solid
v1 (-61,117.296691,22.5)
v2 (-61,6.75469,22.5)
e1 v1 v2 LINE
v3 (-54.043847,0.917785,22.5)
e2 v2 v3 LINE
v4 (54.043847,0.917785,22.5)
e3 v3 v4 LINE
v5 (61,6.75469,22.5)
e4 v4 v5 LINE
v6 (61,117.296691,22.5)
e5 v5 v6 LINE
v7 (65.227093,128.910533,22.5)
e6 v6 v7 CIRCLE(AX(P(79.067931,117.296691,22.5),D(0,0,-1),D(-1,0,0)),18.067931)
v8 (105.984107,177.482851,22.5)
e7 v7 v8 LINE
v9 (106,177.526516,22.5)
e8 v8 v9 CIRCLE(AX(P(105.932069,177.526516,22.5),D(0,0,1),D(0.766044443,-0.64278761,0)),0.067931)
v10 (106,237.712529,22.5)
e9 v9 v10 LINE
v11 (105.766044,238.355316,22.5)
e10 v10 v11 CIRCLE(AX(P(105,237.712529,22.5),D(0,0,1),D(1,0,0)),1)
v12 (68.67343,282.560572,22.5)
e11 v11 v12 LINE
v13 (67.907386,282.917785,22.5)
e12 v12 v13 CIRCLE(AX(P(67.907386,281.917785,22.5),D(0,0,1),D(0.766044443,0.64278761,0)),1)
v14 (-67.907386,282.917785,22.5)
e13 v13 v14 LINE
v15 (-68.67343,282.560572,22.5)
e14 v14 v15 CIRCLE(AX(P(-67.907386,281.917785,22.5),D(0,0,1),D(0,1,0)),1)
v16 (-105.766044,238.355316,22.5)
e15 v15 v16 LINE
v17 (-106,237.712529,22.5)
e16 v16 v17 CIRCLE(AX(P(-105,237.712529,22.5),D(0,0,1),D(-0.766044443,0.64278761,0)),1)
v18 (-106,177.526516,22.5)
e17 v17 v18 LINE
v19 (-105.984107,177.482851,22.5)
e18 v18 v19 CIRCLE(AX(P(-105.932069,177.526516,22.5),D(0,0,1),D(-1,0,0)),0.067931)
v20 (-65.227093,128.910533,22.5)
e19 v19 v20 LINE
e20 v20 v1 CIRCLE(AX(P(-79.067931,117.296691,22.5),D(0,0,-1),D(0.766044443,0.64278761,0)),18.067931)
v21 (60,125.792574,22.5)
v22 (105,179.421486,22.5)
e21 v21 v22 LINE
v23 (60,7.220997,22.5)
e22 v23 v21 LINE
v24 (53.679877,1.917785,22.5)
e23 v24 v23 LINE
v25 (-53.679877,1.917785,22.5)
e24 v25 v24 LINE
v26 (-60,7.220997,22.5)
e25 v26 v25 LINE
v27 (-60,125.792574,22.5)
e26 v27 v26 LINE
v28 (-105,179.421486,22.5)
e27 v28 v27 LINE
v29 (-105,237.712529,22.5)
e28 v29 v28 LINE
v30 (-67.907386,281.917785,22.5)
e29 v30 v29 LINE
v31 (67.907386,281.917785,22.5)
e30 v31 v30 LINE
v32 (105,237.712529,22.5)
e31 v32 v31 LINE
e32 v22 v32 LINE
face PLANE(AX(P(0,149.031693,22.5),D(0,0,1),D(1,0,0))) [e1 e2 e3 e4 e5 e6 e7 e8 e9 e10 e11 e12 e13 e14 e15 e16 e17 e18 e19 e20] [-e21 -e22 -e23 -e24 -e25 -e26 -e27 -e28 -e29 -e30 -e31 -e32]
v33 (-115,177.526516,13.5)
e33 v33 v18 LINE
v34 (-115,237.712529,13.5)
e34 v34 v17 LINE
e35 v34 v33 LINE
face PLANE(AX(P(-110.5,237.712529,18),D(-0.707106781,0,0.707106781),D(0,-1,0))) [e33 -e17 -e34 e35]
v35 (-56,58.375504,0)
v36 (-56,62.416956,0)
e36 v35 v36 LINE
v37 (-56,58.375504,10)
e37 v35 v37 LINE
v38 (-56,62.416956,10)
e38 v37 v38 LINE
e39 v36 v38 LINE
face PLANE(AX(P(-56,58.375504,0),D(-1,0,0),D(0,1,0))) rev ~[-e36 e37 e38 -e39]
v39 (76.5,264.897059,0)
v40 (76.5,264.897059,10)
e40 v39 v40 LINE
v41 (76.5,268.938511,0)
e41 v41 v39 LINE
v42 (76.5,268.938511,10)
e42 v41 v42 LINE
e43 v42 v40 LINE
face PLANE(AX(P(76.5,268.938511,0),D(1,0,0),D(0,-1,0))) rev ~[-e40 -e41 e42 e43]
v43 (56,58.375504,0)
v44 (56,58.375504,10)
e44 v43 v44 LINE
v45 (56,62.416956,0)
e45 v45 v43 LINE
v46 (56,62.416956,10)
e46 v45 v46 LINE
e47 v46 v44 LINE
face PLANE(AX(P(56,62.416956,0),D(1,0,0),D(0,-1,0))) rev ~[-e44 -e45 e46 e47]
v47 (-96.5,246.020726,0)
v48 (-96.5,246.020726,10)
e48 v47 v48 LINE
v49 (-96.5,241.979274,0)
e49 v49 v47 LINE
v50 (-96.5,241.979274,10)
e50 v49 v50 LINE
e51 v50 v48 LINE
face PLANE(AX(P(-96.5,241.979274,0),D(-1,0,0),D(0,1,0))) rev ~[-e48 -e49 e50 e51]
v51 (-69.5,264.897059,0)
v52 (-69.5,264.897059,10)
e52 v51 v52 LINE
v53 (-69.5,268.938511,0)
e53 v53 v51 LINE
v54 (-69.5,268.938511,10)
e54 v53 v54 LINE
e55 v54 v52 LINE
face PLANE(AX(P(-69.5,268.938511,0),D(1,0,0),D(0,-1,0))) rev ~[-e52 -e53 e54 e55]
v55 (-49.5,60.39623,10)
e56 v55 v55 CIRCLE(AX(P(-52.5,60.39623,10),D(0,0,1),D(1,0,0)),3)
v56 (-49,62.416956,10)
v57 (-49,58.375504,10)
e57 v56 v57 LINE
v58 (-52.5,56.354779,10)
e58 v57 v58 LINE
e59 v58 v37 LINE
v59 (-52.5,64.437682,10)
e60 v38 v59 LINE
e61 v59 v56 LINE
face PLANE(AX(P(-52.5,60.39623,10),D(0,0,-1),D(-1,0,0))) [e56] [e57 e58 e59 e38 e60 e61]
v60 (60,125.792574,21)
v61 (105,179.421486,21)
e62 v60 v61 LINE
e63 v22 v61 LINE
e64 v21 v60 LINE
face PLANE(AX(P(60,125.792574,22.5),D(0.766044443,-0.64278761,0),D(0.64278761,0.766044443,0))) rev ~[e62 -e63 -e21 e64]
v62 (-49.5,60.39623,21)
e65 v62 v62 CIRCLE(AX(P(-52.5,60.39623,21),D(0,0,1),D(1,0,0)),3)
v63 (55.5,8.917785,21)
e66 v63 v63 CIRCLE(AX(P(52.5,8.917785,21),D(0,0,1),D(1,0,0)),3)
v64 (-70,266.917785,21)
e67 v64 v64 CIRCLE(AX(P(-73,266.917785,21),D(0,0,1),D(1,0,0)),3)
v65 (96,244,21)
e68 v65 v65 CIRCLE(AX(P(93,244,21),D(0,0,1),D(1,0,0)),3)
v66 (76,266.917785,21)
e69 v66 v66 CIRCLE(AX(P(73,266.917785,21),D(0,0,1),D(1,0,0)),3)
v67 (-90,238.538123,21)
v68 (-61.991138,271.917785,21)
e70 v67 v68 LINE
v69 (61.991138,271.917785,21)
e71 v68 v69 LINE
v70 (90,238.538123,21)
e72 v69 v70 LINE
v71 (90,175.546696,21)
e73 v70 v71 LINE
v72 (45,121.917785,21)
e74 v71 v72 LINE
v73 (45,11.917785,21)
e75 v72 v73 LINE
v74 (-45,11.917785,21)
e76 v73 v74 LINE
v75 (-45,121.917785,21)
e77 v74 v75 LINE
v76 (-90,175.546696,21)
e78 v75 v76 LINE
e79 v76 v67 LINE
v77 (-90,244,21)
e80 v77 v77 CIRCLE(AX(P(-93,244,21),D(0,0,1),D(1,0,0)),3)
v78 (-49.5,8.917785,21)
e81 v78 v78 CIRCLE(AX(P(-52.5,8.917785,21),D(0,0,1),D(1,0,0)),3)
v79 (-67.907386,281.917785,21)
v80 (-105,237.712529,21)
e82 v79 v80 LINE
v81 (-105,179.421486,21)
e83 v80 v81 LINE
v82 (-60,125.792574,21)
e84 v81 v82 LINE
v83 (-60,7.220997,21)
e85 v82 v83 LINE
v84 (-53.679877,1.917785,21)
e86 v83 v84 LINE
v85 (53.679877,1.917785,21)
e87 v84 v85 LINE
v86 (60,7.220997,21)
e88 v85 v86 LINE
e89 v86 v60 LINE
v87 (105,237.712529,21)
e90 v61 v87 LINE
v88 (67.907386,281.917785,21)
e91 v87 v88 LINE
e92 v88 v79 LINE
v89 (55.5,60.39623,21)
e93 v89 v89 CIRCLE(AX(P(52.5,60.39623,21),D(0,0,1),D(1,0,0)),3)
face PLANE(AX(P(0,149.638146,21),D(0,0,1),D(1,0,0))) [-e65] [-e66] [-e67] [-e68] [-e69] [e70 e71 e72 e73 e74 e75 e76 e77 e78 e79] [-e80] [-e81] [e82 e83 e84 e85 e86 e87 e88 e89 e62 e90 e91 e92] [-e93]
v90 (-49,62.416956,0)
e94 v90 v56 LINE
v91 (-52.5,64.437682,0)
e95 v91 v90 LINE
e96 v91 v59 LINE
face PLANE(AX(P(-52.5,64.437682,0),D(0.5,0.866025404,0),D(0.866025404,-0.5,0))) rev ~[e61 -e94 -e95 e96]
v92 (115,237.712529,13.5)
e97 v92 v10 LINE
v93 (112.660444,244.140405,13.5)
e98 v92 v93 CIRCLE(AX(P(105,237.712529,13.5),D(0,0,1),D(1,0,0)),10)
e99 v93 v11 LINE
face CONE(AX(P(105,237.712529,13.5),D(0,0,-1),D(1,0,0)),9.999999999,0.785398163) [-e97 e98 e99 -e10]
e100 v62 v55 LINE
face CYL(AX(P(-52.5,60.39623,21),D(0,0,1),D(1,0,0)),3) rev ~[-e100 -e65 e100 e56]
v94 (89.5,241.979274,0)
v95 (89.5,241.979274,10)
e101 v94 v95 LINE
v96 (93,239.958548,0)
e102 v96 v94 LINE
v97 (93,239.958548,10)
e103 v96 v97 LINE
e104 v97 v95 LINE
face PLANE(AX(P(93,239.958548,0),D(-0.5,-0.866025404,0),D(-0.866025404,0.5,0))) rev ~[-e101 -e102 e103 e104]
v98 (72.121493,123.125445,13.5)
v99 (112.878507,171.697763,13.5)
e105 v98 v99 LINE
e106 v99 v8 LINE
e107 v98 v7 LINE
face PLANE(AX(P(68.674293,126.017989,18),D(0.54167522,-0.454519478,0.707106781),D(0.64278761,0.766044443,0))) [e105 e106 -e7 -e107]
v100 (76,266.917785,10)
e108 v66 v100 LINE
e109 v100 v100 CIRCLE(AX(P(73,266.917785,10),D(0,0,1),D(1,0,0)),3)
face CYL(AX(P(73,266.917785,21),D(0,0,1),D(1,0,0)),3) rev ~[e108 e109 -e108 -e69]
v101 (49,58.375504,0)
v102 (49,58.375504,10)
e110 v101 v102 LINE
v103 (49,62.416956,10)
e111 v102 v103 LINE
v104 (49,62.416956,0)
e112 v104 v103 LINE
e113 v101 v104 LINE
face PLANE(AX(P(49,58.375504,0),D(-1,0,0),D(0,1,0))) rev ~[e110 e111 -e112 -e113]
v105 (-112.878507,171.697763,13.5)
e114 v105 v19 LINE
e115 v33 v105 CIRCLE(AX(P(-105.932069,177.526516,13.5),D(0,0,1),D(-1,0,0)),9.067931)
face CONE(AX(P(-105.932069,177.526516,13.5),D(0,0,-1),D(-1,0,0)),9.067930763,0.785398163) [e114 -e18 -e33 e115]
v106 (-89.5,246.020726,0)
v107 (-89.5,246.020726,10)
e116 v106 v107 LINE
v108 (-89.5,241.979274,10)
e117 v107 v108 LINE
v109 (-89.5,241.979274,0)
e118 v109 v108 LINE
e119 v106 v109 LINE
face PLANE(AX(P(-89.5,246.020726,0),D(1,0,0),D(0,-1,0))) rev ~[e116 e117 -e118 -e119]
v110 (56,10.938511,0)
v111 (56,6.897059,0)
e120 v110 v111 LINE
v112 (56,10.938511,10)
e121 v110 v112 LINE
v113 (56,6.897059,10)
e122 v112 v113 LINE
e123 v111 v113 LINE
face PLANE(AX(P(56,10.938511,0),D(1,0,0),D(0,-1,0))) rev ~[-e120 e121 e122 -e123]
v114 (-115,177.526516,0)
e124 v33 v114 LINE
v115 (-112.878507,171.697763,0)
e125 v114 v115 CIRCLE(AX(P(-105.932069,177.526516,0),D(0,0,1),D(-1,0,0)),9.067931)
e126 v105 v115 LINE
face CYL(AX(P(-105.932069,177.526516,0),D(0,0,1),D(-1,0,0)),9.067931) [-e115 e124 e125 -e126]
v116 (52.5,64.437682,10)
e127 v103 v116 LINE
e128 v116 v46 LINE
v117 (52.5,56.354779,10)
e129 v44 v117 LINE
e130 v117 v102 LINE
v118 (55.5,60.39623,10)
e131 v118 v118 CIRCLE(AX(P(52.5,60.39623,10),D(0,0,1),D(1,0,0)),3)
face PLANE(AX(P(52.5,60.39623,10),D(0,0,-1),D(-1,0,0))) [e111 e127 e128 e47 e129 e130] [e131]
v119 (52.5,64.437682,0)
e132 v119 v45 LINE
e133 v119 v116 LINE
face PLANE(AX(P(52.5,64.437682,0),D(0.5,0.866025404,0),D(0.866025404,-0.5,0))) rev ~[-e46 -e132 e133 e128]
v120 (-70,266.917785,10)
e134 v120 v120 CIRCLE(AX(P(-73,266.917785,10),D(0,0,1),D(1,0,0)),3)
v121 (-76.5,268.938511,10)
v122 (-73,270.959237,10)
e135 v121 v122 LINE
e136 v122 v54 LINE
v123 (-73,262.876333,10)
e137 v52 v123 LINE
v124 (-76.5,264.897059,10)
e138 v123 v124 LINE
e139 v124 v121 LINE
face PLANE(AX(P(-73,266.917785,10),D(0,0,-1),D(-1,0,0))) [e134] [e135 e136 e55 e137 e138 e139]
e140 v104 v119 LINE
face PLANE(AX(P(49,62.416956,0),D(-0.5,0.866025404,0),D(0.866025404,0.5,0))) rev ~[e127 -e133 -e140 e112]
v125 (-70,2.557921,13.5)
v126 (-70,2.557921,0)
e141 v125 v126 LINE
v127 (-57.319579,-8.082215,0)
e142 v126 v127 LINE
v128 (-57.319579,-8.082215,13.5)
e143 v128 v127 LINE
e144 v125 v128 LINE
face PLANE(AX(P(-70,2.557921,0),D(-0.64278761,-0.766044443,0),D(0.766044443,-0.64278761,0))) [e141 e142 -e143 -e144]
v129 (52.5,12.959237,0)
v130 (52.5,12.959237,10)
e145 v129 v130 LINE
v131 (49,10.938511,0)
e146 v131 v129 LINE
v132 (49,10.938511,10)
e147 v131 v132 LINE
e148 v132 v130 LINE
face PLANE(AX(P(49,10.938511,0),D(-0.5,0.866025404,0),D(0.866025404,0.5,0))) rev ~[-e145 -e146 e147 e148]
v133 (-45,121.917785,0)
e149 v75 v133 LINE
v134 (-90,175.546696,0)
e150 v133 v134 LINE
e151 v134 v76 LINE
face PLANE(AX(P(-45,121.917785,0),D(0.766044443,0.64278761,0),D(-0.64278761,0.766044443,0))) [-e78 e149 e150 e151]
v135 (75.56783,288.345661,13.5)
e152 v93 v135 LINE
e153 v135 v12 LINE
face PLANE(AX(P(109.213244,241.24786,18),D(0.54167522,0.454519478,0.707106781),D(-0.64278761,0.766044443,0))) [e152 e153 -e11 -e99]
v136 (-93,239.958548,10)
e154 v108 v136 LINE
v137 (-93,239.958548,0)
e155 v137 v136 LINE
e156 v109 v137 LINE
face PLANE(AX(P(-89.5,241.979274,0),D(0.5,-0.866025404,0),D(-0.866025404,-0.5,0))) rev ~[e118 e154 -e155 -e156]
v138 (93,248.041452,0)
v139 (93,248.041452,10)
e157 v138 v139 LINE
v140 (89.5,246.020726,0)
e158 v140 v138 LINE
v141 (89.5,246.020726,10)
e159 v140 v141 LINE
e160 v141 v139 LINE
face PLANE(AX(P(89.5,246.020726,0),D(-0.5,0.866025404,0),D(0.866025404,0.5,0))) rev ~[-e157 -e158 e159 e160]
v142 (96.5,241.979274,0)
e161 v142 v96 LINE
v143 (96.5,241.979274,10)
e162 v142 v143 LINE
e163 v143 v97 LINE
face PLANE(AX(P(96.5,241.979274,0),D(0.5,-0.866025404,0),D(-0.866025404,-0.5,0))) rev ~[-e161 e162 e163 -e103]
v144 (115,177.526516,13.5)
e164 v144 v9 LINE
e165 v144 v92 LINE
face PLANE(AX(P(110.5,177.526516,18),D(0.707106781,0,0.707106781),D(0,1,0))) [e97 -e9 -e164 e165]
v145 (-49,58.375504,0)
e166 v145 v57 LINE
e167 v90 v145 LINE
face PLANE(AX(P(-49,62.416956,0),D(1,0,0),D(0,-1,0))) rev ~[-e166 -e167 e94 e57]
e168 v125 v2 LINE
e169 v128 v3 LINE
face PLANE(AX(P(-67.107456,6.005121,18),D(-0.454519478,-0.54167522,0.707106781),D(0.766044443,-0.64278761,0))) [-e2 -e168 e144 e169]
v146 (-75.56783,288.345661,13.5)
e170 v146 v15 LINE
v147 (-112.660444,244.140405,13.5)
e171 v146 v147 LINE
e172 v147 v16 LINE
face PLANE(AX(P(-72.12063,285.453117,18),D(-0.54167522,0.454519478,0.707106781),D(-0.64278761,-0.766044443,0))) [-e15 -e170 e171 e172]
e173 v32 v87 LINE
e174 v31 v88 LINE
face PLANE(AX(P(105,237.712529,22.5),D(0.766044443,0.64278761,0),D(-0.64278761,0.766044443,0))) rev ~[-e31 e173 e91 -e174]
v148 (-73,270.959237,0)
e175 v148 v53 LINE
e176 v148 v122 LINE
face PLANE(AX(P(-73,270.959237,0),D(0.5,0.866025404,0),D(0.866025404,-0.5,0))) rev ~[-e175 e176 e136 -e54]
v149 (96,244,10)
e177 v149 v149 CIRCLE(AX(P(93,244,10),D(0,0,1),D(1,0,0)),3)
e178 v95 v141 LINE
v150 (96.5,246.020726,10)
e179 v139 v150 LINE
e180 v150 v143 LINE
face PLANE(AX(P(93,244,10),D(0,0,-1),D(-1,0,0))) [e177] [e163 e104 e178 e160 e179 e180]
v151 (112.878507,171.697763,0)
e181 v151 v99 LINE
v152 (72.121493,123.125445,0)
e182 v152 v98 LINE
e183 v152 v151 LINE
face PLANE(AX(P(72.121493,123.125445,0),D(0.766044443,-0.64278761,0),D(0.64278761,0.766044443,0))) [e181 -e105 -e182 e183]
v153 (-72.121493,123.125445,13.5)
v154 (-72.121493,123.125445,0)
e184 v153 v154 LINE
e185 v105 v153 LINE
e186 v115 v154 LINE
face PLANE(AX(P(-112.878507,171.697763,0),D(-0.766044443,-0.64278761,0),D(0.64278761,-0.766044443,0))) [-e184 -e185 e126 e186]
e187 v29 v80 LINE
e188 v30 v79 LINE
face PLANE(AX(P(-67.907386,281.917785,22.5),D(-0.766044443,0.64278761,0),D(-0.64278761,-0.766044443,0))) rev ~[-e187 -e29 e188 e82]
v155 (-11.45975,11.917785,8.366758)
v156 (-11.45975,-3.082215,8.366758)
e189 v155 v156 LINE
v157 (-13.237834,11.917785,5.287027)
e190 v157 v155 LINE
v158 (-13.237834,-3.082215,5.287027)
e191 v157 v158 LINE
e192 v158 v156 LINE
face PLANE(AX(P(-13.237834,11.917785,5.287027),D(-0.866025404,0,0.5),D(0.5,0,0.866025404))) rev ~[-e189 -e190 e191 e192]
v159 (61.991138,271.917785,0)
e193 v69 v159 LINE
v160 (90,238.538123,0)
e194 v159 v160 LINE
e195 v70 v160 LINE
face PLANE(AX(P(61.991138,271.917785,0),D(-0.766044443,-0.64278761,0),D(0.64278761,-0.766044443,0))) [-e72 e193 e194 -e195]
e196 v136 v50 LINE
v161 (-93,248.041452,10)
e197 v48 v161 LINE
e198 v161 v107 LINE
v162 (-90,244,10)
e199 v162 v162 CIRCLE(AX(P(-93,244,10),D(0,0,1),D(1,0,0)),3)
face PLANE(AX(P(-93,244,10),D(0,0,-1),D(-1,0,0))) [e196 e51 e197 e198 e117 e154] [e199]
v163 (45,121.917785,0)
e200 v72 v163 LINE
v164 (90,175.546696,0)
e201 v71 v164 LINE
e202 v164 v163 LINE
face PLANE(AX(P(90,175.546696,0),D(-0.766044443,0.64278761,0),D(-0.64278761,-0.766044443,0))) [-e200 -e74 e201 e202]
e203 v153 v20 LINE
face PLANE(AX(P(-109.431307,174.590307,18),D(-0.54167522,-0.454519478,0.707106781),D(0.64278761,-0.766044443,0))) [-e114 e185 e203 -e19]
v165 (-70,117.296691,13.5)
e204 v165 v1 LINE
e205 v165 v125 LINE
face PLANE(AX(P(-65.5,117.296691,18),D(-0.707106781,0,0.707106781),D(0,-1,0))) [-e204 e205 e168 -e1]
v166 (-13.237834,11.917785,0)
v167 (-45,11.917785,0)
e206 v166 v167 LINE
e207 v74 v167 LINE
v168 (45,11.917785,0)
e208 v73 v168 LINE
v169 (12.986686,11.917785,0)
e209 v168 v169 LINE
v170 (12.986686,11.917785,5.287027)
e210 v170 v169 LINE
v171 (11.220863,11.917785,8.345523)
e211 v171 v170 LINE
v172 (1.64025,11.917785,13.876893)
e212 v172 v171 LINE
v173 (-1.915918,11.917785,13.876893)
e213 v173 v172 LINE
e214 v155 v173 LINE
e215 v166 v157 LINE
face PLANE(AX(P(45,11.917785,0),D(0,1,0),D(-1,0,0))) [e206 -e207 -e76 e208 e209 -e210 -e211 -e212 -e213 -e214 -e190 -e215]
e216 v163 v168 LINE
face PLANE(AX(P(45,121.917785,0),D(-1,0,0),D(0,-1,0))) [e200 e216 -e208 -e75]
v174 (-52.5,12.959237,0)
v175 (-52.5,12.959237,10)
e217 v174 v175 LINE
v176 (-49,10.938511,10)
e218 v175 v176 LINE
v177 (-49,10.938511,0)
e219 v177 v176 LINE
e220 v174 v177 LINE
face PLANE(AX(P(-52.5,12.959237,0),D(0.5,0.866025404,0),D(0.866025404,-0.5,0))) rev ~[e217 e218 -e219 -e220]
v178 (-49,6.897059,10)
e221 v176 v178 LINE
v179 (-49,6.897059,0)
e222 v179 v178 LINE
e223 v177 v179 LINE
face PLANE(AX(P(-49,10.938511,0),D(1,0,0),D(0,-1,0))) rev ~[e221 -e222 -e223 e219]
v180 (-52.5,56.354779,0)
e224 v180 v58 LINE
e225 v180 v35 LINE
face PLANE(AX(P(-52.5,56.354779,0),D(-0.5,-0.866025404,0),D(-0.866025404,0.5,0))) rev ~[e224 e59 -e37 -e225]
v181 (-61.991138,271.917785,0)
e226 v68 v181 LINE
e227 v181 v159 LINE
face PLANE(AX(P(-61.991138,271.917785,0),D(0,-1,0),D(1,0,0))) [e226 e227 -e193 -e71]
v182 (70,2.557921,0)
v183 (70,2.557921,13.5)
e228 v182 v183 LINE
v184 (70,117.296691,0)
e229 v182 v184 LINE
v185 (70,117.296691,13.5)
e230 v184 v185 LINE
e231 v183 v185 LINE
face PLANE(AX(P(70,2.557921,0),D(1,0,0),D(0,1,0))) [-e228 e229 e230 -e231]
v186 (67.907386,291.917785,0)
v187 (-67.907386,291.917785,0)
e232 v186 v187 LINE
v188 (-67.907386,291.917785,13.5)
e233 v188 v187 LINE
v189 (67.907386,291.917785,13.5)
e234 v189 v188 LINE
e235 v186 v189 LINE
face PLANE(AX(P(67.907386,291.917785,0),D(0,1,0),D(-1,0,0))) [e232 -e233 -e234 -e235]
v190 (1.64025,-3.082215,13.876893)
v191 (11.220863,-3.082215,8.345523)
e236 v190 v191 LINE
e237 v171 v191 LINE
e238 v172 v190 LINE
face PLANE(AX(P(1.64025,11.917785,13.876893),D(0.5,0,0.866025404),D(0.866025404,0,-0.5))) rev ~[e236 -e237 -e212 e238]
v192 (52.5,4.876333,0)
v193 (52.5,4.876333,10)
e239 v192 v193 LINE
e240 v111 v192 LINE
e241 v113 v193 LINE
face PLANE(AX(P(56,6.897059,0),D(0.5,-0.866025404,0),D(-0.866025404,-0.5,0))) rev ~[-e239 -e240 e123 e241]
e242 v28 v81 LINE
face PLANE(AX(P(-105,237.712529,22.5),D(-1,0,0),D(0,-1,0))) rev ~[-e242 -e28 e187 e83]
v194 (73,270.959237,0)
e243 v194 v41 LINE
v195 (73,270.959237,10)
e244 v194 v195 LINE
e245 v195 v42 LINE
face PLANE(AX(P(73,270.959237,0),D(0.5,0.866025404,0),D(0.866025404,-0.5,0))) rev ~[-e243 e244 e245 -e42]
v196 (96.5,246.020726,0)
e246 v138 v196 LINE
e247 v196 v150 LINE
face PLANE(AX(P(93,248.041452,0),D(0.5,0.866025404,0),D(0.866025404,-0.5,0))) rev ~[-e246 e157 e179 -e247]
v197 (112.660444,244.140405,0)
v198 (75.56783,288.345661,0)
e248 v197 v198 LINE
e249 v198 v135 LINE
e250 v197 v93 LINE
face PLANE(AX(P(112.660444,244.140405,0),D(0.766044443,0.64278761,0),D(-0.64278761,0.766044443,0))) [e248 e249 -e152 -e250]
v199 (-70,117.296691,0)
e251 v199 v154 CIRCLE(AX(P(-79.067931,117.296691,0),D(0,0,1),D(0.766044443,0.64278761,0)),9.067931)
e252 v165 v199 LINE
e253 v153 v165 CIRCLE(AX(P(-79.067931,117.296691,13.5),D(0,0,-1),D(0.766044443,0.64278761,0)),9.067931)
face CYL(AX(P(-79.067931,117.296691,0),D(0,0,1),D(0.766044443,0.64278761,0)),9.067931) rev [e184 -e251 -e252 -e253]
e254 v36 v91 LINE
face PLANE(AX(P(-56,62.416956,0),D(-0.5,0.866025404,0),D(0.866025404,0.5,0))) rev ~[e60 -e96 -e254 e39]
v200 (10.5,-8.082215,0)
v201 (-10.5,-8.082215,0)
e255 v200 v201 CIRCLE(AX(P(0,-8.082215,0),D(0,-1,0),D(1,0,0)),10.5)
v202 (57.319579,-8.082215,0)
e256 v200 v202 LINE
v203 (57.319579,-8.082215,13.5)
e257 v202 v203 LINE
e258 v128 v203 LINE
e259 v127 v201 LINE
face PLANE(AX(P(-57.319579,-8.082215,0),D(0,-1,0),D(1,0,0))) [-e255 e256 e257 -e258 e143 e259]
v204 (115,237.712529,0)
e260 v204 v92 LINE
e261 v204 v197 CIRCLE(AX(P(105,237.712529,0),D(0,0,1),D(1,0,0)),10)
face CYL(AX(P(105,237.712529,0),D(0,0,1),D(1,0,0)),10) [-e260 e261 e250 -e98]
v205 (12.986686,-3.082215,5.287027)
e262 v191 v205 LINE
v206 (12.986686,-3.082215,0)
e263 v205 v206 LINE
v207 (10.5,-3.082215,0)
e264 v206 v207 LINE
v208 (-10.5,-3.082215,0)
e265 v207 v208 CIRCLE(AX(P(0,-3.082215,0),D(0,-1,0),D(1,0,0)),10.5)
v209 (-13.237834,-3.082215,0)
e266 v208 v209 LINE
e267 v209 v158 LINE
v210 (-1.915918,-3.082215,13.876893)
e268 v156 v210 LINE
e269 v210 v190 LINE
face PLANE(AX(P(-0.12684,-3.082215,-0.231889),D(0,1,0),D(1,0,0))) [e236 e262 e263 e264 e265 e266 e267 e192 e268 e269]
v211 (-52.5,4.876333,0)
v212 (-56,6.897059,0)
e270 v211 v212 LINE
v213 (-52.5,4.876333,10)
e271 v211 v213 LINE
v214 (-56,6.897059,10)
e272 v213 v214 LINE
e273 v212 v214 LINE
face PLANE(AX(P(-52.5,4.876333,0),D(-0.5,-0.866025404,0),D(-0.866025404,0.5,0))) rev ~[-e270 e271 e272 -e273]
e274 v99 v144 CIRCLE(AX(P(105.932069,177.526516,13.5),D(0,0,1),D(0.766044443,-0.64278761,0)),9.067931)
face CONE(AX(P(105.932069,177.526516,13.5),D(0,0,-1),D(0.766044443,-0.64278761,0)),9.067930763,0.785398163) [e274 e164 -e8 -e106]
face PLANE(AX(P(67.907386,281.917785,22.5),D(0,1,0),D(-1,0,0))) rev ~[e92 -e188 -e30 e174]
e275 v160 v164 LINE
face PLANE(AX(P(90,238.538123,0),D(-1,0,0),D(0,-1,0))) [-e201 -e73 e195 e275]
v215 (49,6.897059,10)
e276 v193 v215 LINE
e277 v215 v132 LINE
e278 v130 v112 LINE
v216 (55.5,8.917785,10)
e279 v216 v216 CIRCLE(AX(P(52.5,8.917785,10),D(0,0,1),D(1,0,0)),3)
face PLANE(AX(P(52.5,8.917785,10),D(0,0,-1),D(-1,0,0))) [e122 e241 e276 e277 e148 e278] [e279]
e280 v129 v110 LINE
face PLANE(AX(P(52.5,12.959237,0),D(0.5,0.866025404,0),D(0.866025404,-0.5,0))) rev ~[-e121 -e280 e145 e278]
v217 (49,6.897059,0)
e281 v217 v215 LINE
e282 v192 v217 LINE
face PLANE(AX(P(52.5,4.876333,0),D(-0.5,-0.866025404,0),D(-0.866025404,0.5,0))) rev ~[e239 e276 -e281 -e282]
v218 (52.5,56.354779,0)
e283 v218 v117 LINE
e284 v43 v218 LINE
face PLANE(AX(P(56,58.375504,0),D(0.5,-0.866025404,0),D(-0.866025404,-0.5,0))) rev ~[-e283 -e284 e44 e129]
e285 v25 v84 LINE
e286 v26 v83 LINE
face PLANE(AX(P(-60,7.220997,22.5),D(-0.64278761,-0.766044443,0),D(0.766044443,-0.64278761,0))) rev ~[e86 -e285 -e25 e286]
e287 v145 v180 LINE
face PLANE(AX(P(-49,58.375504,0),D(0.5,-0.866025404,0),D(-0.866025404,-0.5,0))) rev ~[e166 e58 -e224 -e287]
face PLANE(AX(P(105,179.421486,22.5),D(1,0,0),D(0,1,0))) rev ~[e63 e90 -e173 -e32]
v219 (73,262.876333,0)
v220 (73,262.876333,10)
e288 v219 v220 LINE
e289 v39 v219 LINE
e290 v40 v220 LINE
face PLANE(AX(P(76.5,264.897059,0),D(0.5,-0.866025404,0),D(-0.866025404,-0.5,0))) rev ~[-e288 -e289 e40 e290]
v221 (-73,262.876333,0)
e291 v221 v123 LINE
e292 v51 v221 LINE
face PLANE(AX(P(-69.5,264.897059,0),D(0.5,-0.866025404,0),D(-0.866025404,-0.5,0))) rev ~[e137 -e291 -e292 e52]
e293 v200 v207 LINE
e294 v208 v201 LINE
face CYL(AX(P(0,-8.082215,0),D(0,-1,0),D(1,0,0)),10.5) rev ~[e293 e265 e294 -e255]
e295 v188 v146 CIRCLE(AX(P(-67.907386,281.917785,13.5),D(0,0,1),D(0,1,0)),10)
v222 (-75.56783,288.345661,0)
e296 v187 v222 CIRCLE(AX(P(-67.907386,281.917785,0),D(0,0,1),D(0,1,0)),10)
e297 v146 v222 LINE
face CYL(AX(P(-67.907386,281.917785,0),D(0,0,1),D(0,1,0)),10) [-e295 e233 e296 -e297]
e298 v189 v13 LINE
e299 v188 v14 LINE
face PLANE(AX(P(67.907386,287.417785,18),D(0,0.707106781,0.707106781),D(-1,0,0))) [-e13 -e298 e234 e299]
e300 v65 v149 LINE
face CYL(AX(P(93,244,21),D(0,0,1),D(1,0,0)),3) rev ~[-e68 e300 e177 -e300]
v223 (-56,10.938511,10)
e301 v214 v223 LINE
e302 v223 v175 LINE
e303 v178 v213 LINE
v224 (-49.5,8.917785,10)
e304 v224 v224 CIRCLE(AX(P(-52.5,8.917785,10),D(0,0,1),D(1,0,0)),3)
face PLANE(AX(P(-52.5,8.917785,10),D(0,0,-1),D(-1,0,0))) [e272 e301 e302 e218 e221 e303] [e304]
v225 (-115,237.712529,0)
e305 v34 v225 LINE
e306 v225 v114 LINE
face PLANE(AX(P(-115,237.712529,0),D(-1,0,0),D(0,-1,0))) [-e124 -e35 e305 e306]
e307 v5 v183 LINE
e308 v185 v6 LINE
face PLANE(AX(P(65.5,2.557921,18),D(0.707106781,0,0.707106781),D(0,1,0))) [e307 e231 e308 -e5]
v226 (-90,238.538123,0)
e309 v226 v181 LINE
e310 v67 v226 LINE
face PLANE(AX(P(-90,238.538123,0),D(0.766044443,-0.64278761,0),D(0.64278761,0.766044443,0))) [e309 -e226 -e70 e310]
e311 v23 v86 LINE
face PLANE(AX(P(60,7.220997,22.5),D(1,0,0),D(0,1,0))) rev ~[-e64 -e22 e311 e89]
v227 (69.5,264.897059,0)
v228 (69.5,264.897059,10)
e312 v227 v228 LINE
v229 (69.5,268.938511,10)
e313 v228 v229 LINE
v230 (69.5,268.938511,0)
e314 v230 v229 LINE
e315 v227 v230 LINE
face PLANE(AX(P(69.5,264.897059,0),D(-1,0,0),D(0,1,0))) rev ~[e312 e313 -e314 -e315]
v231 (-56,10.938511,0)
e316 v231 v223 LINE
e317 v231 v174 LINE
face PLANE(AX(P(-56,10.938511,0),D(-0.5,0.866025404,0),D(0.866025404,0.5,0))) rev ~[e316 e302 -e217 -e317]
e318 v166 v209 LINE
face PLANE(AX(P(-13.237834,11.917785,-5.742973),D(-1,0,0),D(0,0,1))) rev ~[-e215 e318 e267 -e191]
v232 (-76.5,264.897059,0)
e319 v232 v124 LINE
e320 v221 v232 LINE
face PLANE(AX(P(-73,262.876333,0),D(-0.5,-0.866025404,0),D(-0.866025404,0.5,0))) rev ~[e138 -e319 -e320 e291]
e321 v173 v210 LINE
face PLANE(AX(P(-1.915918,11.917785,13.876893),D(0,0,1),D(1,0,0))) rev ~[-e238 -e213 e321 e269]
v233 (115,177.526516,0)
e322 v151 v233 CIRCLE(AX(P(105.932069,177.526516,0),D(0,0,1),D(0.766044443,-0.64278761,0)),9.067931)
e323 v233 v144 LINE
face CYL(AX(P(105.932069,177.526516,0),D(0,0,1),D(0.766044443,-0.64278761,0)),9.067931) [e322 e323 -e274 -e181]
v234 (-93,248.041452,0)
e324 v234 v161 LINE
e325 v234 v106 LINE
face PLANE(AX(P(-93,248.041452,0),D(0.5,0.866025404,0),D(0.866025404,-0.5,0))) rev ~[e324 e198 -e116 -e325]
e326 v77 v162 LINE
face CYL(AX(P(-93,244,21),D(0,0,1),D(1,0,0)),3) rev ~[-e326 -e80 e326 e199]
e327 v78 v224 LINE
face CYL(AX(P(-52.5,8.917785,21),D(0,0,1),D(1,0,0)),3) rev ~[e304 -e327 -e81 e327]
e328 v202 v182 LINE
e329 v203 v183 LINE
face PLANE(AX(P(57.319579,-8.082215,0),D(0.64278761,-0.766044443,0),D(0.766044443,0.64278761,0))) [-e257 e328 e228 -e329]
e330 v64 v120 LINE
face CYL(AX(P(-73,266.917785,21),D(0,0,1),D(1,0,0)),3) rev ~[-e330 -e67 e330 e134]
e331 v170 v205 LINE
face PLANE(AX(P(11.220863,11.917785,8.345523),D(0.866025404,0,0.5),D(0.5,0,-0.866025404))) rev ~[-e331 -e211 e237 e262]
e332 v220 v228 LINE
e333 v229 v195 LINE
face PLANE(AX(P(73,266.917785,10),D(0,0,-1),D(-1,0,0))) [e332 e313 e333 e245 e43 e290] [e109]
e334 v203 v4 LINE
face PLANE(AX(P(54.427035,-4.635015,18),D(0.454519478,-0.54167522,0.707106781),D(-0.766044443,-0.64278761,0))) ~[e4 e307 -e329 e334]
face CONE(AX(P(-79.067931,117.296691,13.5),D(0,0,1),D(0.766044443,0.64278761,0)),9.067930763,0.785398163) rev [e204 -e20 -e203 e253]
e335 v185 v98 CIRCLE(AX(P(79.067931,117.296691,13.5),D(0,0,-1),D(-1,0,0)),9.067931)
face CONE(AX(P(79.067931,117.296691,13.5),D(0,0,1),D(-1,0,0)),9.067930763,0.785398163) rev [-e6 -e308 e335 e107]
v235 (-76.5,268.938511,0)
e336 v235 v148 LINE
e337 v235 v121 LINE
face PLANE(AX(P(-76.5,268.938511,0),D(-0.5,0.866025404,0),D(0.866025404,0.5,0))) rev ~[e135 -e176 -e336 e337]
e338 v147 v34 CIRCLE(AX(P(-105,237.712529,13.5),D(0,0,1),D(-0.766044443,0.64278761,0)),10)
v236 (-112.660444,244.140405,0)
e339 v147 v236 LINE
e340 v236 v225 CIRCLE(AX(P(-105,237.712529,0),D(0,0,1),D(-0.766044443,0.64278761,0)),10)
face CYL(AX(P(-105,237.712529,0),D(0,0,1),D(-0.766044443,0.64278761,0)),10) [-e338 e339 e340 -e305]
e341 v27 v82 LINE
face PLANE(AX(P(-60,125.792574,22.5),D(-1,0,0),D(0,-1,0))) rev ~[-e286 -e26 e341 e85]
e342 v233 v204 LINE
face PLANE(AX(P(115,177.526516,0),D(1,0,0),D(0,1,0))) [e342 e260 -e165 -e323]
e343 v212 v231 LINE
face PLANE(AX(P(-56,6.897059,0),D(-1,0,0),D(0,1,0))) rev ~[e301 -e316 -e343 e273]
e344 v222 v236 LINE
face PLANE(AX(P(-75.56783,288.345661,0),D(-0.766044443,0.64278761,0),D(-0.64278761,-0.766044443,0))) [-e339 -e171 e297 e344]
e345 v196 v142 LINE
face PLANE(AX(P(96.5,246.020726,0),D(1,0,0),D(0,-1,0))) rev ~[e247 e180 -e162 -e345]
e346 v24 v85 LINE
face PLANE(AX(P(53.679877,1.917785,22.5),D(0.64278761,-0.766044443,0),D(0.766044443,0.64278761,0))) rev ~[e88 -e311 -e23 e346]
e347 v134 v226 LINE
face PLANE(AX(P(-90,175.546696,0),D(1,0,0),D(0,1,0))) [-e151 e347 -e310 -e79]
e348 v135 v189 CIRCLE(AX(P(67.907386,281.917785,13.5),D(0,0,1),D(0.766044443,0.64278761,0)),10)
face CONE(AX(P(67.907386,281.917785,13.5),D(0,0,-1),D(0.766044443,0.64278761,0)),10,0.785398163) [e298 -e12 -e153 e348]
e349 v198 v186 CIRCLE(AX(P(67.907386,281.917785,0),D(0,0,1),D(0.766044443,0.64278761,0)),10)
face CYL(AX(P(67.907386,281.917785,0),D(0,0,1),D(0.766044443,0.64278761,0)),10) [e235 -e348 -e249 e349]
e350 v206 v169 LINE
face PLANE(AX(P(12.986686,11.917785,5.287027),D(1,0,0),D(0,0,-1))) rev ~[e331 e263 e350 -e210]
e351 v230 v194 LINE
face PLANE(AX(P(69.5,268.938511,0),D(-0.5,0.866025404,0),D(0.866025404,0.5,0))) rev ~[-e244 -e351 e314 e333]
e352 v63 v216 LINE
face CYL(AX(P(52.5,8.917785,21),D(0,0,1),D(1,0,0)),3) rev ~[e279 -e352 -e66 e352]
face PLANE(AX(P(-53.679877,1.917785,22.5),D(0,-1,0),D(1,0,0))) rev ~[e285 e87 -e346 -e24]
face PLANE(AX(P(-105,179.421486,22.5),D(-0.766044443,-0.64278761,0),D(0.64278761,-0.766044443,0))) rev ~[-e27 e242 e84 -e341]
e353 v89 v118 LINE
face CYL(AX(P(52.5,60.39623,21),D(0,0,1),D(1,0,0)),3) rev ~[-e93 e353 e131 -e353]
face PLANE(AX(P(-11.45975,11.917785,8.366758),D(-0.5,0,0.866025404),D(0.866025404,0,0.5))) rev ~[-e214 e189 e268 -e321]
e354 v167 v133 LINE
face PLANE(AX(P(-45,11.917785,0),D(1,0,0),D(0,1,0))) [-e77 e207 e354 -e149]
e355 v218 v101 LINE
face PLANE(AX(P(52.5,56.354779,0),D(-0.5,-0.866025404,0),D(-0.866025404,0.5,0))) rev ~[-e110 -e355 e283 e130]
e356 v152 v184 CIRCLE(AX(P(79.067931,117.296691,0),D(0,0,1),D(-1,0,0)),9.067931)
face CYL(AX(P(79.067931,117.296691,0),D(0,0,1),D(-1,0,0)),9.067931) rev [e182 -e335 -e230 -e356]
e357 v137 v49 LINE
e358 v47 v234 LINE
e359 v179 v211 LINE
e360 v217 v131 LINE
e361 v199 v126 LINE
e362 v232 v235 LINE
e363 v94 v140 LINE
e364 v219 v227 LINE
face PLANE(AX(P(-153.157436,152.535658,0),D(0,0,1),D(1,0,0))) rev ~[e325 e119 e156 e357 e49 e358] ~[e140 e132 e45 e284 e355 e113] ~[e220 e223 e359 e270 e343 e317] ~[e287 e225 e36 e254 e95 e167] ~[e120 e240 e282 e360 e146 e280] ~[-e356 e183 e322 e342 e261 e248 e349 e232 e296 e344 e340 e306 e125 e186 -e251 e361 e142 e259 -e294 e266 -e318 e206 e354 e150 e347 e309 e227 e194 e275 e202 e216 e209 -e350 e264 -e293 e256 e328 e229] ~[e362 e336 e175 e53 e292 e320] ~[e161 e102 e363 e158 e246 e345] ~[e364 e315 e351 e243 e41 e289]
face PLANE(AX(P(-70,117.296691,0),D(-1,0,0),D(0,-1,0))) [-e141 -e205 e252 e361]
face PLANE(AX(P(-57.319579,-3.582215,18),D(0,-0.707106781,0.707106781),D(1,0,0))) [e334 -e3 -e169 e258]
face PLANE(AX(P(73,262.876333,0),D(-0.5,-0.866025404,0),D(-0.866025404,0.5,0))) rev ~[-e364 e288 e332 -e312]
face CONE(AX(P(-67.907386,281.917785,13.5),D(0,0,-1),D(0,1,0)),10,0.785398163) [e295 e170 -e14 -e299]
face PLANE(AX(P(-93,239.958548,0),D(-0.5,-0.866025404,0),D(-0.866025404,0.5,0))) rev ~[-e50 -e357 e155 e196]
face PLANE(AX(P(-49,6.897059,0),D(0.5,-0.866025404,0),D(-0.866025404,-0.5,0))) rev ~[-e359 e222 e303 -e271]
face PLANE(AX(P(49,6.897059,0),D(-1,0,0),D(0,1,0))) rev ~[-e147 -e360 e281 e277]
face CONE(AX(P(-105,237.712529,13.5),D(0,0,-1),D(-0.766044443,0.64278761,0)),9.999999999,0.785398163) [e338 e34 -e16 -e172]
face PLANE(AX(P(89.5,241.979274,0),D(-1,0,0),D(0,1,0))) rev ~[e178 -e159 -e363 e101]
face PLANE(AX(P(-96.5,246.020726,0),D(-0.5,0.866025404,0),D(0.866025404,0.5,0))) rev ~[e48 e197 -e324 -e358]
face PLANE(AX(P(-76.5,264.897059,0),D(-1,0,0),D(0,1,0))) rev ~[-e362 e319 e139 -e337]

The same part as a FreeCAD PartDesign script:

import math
import FreeCAD as App
import Part
import Sketcher

V = App.Vector
Q = App.Units.Quantity


def edges_at(feature, points):
    """Names of the edges that pass closest to the given points."""
    edges = feature.Shape.Edges
    near = lambda p: min(range(len(edges)), key=lambda i: edges[i].distToShape(Part.Vertex(*p))[0])
    return sorted({f"Edge{near(p) + 1}" for p in points})


def add_polygon(sketch, points):
    """Adds a closed chain of lines whose ends are joined by coincident constraints."""
    first, n = sketch.GeometryCount, len(points)
    for a, b in zip(points, points[1:] + points[:1]):
        sketch.addGeometry(Part.LineSegment(App.Vector(*a, 0), App.Vector(*b, 0)), False)
    for i in range(n):
        sketch.addConstraint(Sketcher.Constraint("Coincident", first + i, 2, first + (i + 1) % n, 1))

doc = App.newDocument("Part")
body = doc.addObject("PartDesign::Body", "Body")

sketch1 = doc.addObject("Sketcher::SketchObject", "Sketch")
body.addObject(sketch1)
sketch1.AttachmentSupport = (doc.XY_Plane, [""])
sketch1.MapMode = "FlatFace"
sketch1.addGeometry(Part.LineSegment(V(-57, -8, 0), V(57, -8, 0)), False)
sketch1.addGeometry(Part.LineSegment(V(57, -8, 0), V(70, 3, 0)), False)
sketch1.addGeometry(Part.LineSegment(V(70, 3, 0), V(70, 117, 0)), False)
sketch1.addGeometry(Part.ArcOfCircle(Part.Circle(V(79, 117, 0), V(0, 0, 1), 9), math.radians(140), math.radians(180)), False)
sketch1.addGeometry(Part.LineSegment(V(72, 123, 0), V(113, 172, 0)), False)
sketch1.addGeometry(Part.ArcOfCircle(Part.Circle(V(106, 178, 0), V(0, 0, 1), 9), math.radians(-40), math.radians(0)), False)
sketch1.addGeometry(Part.LineSegment(V(115, 178, 0), V(115, 238, 0)), False)
sketch1.addGeometry(Part.ArcOfCircle(Part.Circle(V(105, 238, 0), V(0, 0, 1), 10), math.radians(0), math.radians(40)), False)
sketch1.addGeometry(Part.LineSegment(V(113, 244, 0), V(76, 288, 0)), False)
sketch1.addGeometry(Part.ArcOfCircle(Part.Circle(V(68, 282, 0), V(0, 0, 1), 10), math.radians(40), math.radians(90)), False)
sketch1.addGeometry(Part.LineSegment(V(68, 292, 0), V(-68, 292, 0)), False)
sketch1.addGeometry(Part.ArcOfCircle(Part.Circle(V(-68, 282, 0), V(0, 0, 1), 10), math.radians(90), math.radians(140)), False)
sketch1.addGeometry(Part.LineSegment(V(-76, 288, 0), V(-113, 244, 0)), False)
sketch1.addGeometry(Part.ArcOfCircle(Part.Circle(V(-105, 238, 0), V(0, 0, 1), 10), math.radians(140), math.radians(180)), False)
sketch1.addGeometry(Part.LineSegment(V(-115, 238, 0), V(-115, 178, 0)), False)
sketch1.addGeometry(Part.ArcOfCircle(Part.Circle(V(-106, 178, 0), V(0, 0, 1), 9), math.radians(180), math.radians(220)), False)
sketch1.addGeometry(Part.LineSegment(V(-113, 172, 0), V(-72, 123, 0)), False)
sketch1.addGeometry(Part.ArcOfCircle(Part.Circle(V(-79, 117, 0), V(0, 0, 1), 9), math.radians(0), math.radians(40)), False)
sketch1.addGeometry(Part.LineSegment(V(-70, 117, 0), V(-70, 3, 0)), False)
sketch1.addGeometry(Part.LineSegment(V(-70, 3, 0), V(-57, -8, 0)), False)
add_polygon(sketch1, [(-45, 122), (-90, 176), (-90, 239), (-62, 272), (62, 272), (90, 239), (90, 176), (45, 122), (45, 12), (-45, 12)])
sketch1.addConstraint([
    Sketcher.Constraint("Coincident", 0, 2, 1, 1),
    Sketcher.Constraint("Coincident", 1, 2, 2, 1),
    Sketcher.Constraint("Tangent", 2, 2, 3, 2),
    Sketcher.Constraint("Tangent", 3, 1, 4, 1),
    Sketcher.Constraint("Tangent", 4, 2, 5, 1),
    Sketcher.Constraint("Tangent", 5, 2, 6, 1),
    Sketcher.Constraint("Tangent", 6, 2, 7, 1),
    Sketcher.Constraint("Tangent", 7, 2, 8, 1),
    Sketcher.Constraint("Tangent", 8, 2, 9, 1),
    Sketcher.Constraint("Tangent", 9, 2, 10, 1),
    Sketcher.Constraint("Tangent", 10, 2, 11, 1),
    Sketcher.Constraint("Tangent", 11, 2, 12, 1),
    Sketcher.Constraint("Tangent", 12, 2, 13, 1),
    Sketcher.Constraint("Tangent", 13, 2, 14, 1),
    Sketcher.Constraint("Tangent", 14, 2, 15, 1),
    Sketcher.Constraint("Tangent", 15, 2, 16, 1),
    Sketcher.Constraint("Tangent", 16, 2, 17, 2),
    Sketcher.Constraint("Tangent", 17, 1, 18, 1),
    Sketcher.Constraint("Coincident", 18, 2, 19, 1),
    Sketcher.Constraint("Coincident", 19, 2, 0, 1),
    Sketcher.Constraint("Horizontal", 0),
    Sketcher.Constraint("Vertical", 2),
    Sketcher.Constraint("Vertical", 6),
    Sketcher.Constraint("Horizontal", 10),
    Sketcher.Constraint("Vertical", 14),
    Sketcher.Constraint("Vertical", 18),
    Sketcher.Constraint("Vertical", 21),
    Sketcher.Constraint("Horizontal", 23),
    Sketcher.Constraint("Vertical", 25),
    Sketcher.Constraint("Vertical", 27),
    Sketcher.Constraint("Horizontal", 28),
    Sketcher.Constraint("Vertical", 29),
    Sketcher.Constraint("Equal", 3, 5),
    Sketcher.Constraint("Equal", 7, 9),
    Sketcher.Constraint("Equal", 9, 11),
    Sketcher.Constraint("Equal", 11, 13),
    Sketcher.Constraint("Equal", 5, 15),
    Sketcher.Constraint("Equal", 15, 17),
    Sketcher.Constraint("Symmetric", 7, 3, 13, 3, -2),
    Sketcher.Constraint("Symmetric", 3, 3, 17, 3, -2),
    Sketcher.Constraint("Symmetric", 21, 2, 24, 2, -2),
    Sketcher.Constraint("Symmetric", 26, 2, 29, 2, -2),
    Sketcher.Constraint("Perpendicular", 1, 8),
    Sketcher.Constraint("Parallel", 4, 12),
    Sketcher.Constraint("Parallel", 8, 16),
    Sketcher.Constraint("Perpendicular", 12, 19),
    Sketcher.Constraint("Parallel", 16, 20),
    Sketcher.Constraint("Perpendicular", 19, 22),
    Sketcher.Constraint("Parallel", 20, 24),
    Sketcher.Constraint("Parallel", 22, 26),
    Sketcher.Constraint("Horizontal", 5, 3, 15, 3),
    Sketcher.Constraint("Horizontal", 1, 2, 18, 2),
    Sketcher.Constraint("Radius", 7, 10.0),
    Sketcher.Constraint("DistanceX", 28, 2, 28, 1, 90.0),
    Sketcher.Constraint("DistanceY", 27, 2, 27, 1, 110.0),
    Sketcher.Constraint("Angle", 1, Q("40 deg")),
    Sketcher.Constraint("DistanceX", -1, 1, 7, 3, 105.0),
    Sketcher.Constraint("DistanceX", -1, 1, 1, 2, 70.0),
    Sketcher.Constraint("DistanceX", 20, 2, -1, 1, 90.0),
    Sketcher.Constraint("DistanceY", 22, 2, 11, 3, 10.0),
    Sketcher.Constraint("DistanceY", 0, 2, 27, 2, 20.0),
    Sketcher.Constraint("Radius", 3, 9.067931),
    Sketcher.Constraint("DistanceX", 0, 1, 0, 2, 114.639159),
    Sketcher.Constraint("DistanceX", 10, 2, 10, 1, 135.814772),
    Sketcher.Constraint("DistanceY", 2, 1, 2, 2, 114.73877),
    Sketcher.Constraint("DistanceX", 23, 1, 23, 2, 123.982277),
    Sketcher.Constraint("DistanceY", 6, 1, 6, 2, 60.186012),
    Sketcher.Constraint("DistanceY", -1, 1, 3, 3, 117.296691),
])
pad1 = doc.addObject("PartDesign::Pad", "Pad")
body.addObject(pad1)
pad1.Profile = sketch1
pad1.Length = 45
pad1.Midplane = True
doc.recompute()

chamfer = doc.addObject("PartDesign::Chamfer", "Chamfer")
body.addObject(chamfer)
chamfer.Base = (pad1, edges_at(pad1, [
    (0, -8.082, 22.5),
    (63.66, -2.762, 22.5),
    (70, 59.927, 22.5),
    (70.547, 120.398, 22.5),
    (92.5, 147.412, 22.5),
    (114.453, 174.425, 22.5),
    (115, 207.62, 22.5),
    (114.397, 241.133, 22.5),
    (94.114, 266.243, 22.5),
    (72.134, 290.981, 22.5),
    (0, 291.918, 22.5),
    (-72.134, 290.981, 22.5),
    (-94.114, 266.243, 22.5),
    (-114.397, 241.133, 22.5),
    (-115, 207.62, 22.5),
    (-114.453, 174.425, 22.5),
    (-92.5, 147.412, 22.5),
    (-70.547, 120.398, 22.5),
    (-70, 59.927, 22.5),
    (-63.66, -2.762, 22.5),
]))
chamfer.Size = 9

sketch2 = doc.addObject("Sketcher::SketchObject", "Sketch001")
body.addObject(sketch2)
sketch2.AttachmentSupport = (doc.XY_Plane, [""])
sketch2.MapMode = "FlatFace"
add_polygon(sketch2, [(-723, 507), (-723, -202), (416, -202), (416, 507)])
sketch2.addConstraint([
    Sketcher.Constraint("Vertical", 0),
    Sketcher.Constraint("Horizontal", 1),
    Sketcher.Constraint("Vertical", 2),
    Sketcher.Constraint("Horizontal", 3),
    Sketcher.Constraint("DistanceX", 1, 1, 1, 2, 1139.230904),
    Sketcher.Constraint("DistanceY", 0, 2, 0, 1, 709.798034),
    Sketcher.Constraint("DistanceX", 0, 2, -1, 1, 722.772888),
    Sketcher.Constraint("DistanceY", 0, 2, -1, 1, 202.363359),
])
pocket1 = doc.addObject("PartDesign::Pocket", "Pocket")
body.addObject(pocket1)
pocket1.Profile = sketch2
pocket1.Length = 22.5

sketch3 = doc.addObject("Sketcher::SketchObject", "Sketch002")
body.addObject(sketch3)
sketch3.AttachmentSupport = (doc.XY_Plane, [""])
sketch3.MapMode = "FlatFace"
sketch3.AttachmentOffset = App.Placement(V(0, 0, 22.5), App.Rotation())
add_polygon(sketch3, [(-60, 7), (-54, 2), (54, 2), (60, 7), (60, 126), (105, 179), (105, 238), (68, 282), (-68, 282), (-105, 238), (-105, 179), (-60, 126)])
add_polygon(sketch3, [(-45, 122), (-90, 176), (-90, 239), (-62, 272), (62, 272), (90, 239), (90, 176), (45, 122), (45, 12), (-45, 12)])
sketch3.addConstraint([
    Sketcher.Constraint("Horizontal", 1),
    Sketcher.Constraint("Vertical", 3),
    Sketcher.Constraint("Vertical", 5),
    Sketcher.Constraint("Horizontal", 7),
    Sketcher.Constraint("Vertical", 9),
    Sketcher.Constraint("Vertical", 11),
    Sketcher.Constraint("Vertical", 13),
    Sketcher.Constraint("Horizontal", 15),
    Sketcher.Constraint("Vertical", 17),
    Sketcher.Constraint("Vertical", 19),
    Sketcher.Constraint("Horizontal", 20),
    Sketcher.Constraint("Vertical", 21),
    Sketcher.Constraint("Symmetric", 5, 2, 8, 2, -2),
    Sketcher.Constraint("Symmetric", 3, 2, 10, 2, -2),
    Sketcher.Constraint("Symmetric", 13, 2, 16, 2, -2),
    Sketcher.Constraint("Symmetric", 18, 2, 21, 2, -2),
    Sketcher.Constraint("Perpendicular", 0, 4),
    Sketcher.Constraint("Perpendicular", 2, 6),
    Sketcher.Constraint("Parallel", 4, 8),
    Sketcher.Constraint("Parallel", 6, 10),
    Sketcher.Constraint("Parallel", 10, 12),
    Sketcher.Constraint("Parallel", 8, 14),
    Sketcher.Constraint("Parallel", 12, 16),
    Sketcher.Constraint("Parallel", 14, 18),
    Sketcher.Constraint("Horizontal", 4, 2, 9, 2),
    Sketcher.Constraint("Horizontal", 2, 2, 11, 2),
    Sketcher.Constraint("Equal", 10, 12),
    Sketcher.Constraint("DistanceX", 20, 2, 20, 1, 90.0),
    Sketcher.Constraint("DistanceY", 19, 2, 19, 1, 110.0),
    Sketcher.Constraint("Angle", 0, Q("-40 deg")),
    Sketcher.Constraint("DistanceX", -1, 1, 2, 2, 60.0),
    Sketcher.Constraint("DistanceX", -1, 1, 4, 2, 105.0),
    Sketcher.Constraint("DistanceY", 1, 2, 6, 2, 280.0),
    Sketcher.Constraint("DistanceY", 14, 2, 7, 2, 10.0),
    Sketcher.Constraint("DistanceY", 1, 2, 19, 2, 10.0),
    Sketcher.Constraint("DistanceX", 7, 2, 7, 1, 135.814772),
    Sketcher.Constraint("DistanceY", 1, 2, 4, 2, 177.503701),
    Sketcher.Constraint("DistanceX", 1, 1, 1, 2, 107.359754),
    Sketcher.Constraint("DistanceX", 15, 1, 15, 2, 123.982277),
    Sketcher.Constraint("DistanceY", -1, 1, 5, 2, 237.712529),
])
pocket2 = doc.addObject("PartDesign::Pocket", "Pocket001")
body.addObject(pocket2)
pocket2.Profile = sketch3
pocket2.Length = 1.5

sketch4 = doc.addObject("Sketcher::SketchObject", "Sketch003")
body.addObject(sketch4)
sketch4.AttachmentSupport = (doc.XY_Plane, [""])
sketch4.MapMode = "FlatFace"
sketch4.AttachmentOffset = App.Placement(V(0, 0, 21), App.Rotation())
sketch4.addGeometry([
    Part.Circle(V(-93, 244, 0), V(0, 0, 1), 3),
    Part.Circle(V(-52.5, 60.4, 0), V(0, 0, 1), 3),
    Part.Circle(V(-73, 266.9, 0), V(0, 0, 1), 3),
    Part.Circle(V(-52.5, 8.9, 0), V(0, 0, 1), 3),
    Part.Circle(V(52.5, 8.9, 0), V(0, 0, 1), 3),
    Part.Circle(V(73, 266.9, 0), V(0, 0, 1), 3),
    Part.Circle(V(52.5, 60.4, 0), V(0, 0, 1), 3),
    Part.Circle(V(93, 244, 0), V(0, 0, 1), 3),
], False)
sketch4.addConstraint([
    Sketcher.Constraint("Equal", 0, 1),
    Sketcher.Constraint("Equal", 1, 2),
    Sketcher.Constraint("Equal", 2, 3),
    Sketcher.Constraint("Equal", 3, 4),
    Sketcher.Constraint("Equal", 4, 5),
    Sketcher.Constraint("Equal", 5, 6),
    Sketcher.Constraint("Equal", 6, 7),
    Sketcher.Constraint("Symmetric", 3, 3, 4, 3, -2),
    Sketcher.Constraint("Symmetric", 2, 3, 5, 3, -2),
    Sketcher.Constraint("Symmetric", 1, 3, 6, 3, -2),
    Sketcher.Constraint("Symmetric", 0, 3, 7, 3, -2),
    Sketcher.Constraint("Vertical", 1, 3, 3, 3),
    Sketcher.Constraint("Diameter", 0, 6.0),
    Sketcher.Constraint("DistanceX", 0, 3, -1, 1, 93.0),
    Sketcher.Constraint("DistanceY", -1, 1, 0, 3, 244.0),
    Sketcher.Constraint("DistanceX", 2, 3, -1, 1, 73.0),
    Sketcher.Constraint("DistanceY", 3, 3, 2, 3, 258.0),
    Sketcher.Constraint("DistanceX", 3, 3, 4, 3, 105.0),
    Sketcher.Constraint("DistanceY", -1, 1, 1, 3, 60.39623),
    Sketcher.Constraint("DistanceY", -1, 1, 2, 3, 266.917785),
])
pocket3 = doc.addObject("PartDesign::Pocket", "Pocket002")
body.addObject(pocket3)
pocket3.Profile = sketch4
pocket3.Type = "ThroughAll"

sketch5 = doc.addObject("Sketcher::SketchObject", "Sketch004")
body.addObject(sketch5)
sketch5.AttachmentSupport = (doc.XY_Plane, [""])
sketch5.MapMode = "FlatFace"
add_polygon(sketch5, [(73, 271), (76.5, 268.9), (76.5, 264.9), (73, 262.9), (69.5, 264.9), (69.5, 268.9)])
add_polygon(sketch5, [(-73, 271), (-69.5, 268.9), (-69.5, 264.9), (-73, 262.9), (-76.5, 264.9), (-76.5, 268.9)])
add_polygon(sketch5, [(93, 248), (96.5, 246), (96.5, 242), (93, 240), (89.5, 242), (89.5, 246)])
add_polygon(sketch5, [(52.5, 64.4), (56, 62.4), (56, 58.4), (52.5, 56.4), (49, 58.4), (49, 62.4)])
add_polygon(sketch5, [(52.5, 13), (56, 10.9), (56, 6.9), (52.5, 4.9), (49, 6.9), (49, 10.9)])
add_polygon(sketch5, [(-52.5, 13), (-49, 10.9), (-49, 6.9), (-52.5, 4.9), (-56, 6.9), (-56, 10.9)])
add_polygon(sketch5, [(-52.5, 64.4), (-49, 62.4), (-49, 58.4), (-52.5, 56.4), (-56, 58.4), (-56, 62.4)])
add_polygon(sketch5, [(-93, 248), (-89.5, 246), (-89.5, 242), (-93, 240), (-96.5, 242), (-96.5, 246)])
sketch5.addConstraint([
    Sketcher.Constraint("Vertical", 1),
    Sketcher.Constraint("Vertical", 4),
    Sketcher.Constraint("Vertical", 7),
    Sketcher.Constraint("Vertical", 10),
    Sketcher.Constraint("Vertical", 13),
    Sketcher.Constraint("Vertical", 16),
    Sketcher.Constraint("Vertical", 19),
    Sketcher.Constraint("Vertical", 22),
    Sketcher.Constraint("Vertical", 25),
    Sketcher.Constraint("Vertical", 28),
    Sketcher.Constraint("Vertical", 31),
    Sketcher.Constraint("Vertical", 34),
    Sketcher.Constraint("Vertical", 37),
    Sketcher.Constraint("Vertical", 40),
    Sketcher.Constraint("Vertical", 43),
    Sketcher.Constraint("Vertical", 46),
    Sketcher.Constraint("Symmetric", 4, 2, 6, 2, -2),
    Sketcher.Constraint("Symmetric", 2, 2, 8, 2, -2),
    Sketcher.Constraint("Symmetric", 1, 2, 9, 2, -2),
    Sketcher.Constraint("Symmetric", 5, 2, 11, 2, -2),
    Sketcher.Constraint("Symmetric", 28, 2, 30, 2, -2),
    Sketcher.Constraint("Symmetric", 26, 2, 32, 2, -2),
    Sketcher.Constraint("Symmetric", 25, 2, 33, 2, -2),
    Sketcher.Constraint("Symmetric", 29, 2, 35, 2, -2),
    Sketcher.Constraint("Symmetric", 22, 2, 36, 2, -2),
    Sketcher.Constraint("Symmetric", 20, 2, 38, 2, -2),
    Sketcher.Constraint("Symmetric", 19, 2, 39, 2, -2),
    Sketcher.Constraint("Symmetric", 23, 2, 41, 2, -2),
    Sketcher.Constraint("Symmetric", 16, 2, 42, 2, -2),
    Sketcher.Constraint("Symmetric", 14, 2, 44, 2, -2),
    Sketcher.Constraint("Symmetric", 13, 2, 45, 2, -2),
    Sketcher.Constraint("Symmetric", 17, 2, 47, 2, -2),
    Sketcher.Constraint("Parallel", 0, 3),
    Sketcher.Constraint("Parallel", 2, 5),
    Sketcher.Constraint("Parallel", 3, 6),
    Sketcher.Constraint("Parallel", 5, 8),
    Sketcher.Constraint("Parallel", 8, 11),
    Sketcher.Constraint("Parallel", 9, 12),
    Sketcher.Constraint("Parallel", 11, 14),
    Sketcher.Constraint("Parallel", 12, 15),
    Sketcher.Constraint("Parallel", 14, 17),
    Sketcher.Constraint("Parallel", 15, 18),
    Sketcher.Constraint("Parallel", 17, 20),
    Sketcher.Constraint("Parallel", 18, 21),
    Sketcher.Constraint("Parallel", 20, 23),
    Sketcher.Constraint("Parallel", 21, 24),
    Sketcher.Constraint("Parallel", 23, 26),
    Sketcher.Constraint("Parallel", 24, 27),
    Sketcher.Constraint("Parallel", 26, 29),
    Sketcher.Constraint("Parallel", 29, 32),
    Sketcher.Constraint("Parallel", 32, 35),
    Sketcher.Constraint("Parallel", 35, 38),
    Sketcher.Constraint("Parallel", 38, 41),
    Sketcher.Constraint("Parallel", 41, 44),
    Sketcher.Constraint("Parallel", 44, 47),
    Sketcher.Constraint("Horizontal", 1, 2, 3, 2),
    Sketcher.Constraint("Horizontal", 0, 2, 4, 2),
    Sketcher.Constraint("Horizontal", 13, 2, 15, 2),
    Sketcher.Constraint("Horizontal", 12, 2, 16, 2),
    Sketcher.Constraint("Horizontal", 19, 2, 21, 2),
    Sketcher.Constraint("Horizontal", 18, 2, 22, 2),
    Sketcher.Constraint("Horizontal", 25, 2, 27, 2),
    Sketcher.Constraint("Horizontal", 24, 2, 28, 2),
    Sketcher.Constraint("Vertical", 19, 2, 24, 2),
    Sketcher.Constraint("Vertical", 23, 2, 26, 2),
    Sketcher.Constraint("Equal", 10, 13),
    Sketcher.Constraint("Equal", 16, 19),
    Sketcher.Constraint("Equal", 22, 25),
    Sketcher.Constraint("Equal", 11, 12),
    Sketcher.Constraint("Equal", 17, 18),
    Sketcher.Constraint("Angle", 0, Q("-30 deg")),
    Sketcher.Constraint("DistanceX", -1, 1, 2, 2, 73.0),
    Sketcher.Constraint("DistanceX", -1, 1, 14, 2, 93.0),
    Sketcher.Constraint("DistanceX", -1, 1, 18, 2, 56.0),
    Sketcher.Constraint("DistanceX", -1, 1, 21, 2, 49.0),
    Sketcher.Constraint("DistanceY", 1, 2, 1, 1, 4.041452),
    Sketcher.Constraint("DistanceY", -1, 1, 0, 2, 268.938511),
    Sketcher.Constraint("DistanceY", -1, 1, 14, 2, 239.958548),
    Sketcher.Constraint("DistanceY", -1, 1, 20, 2, 56.354779),
    Sketcher.Constraint("DistanceY", -1, 1, 24, 2, 10.938511),
])
pocket4 = doc.addObject("PartDesign::Pocket", "Pocket003")
body.addObject(pocket4)
pocket4.Profile = sketch5
pocket4.Length = 10
pocket4.Reversed = True

sketch6 = doc.addObject("Sketcher::SketchObject", "Sketch005")
body.addObject(sketch6)
sketch6.AttachmentSupport = (doc.XZ_Plane, [""])
sketch6.MapMode = "FlatFace"
sketch6.AttachmentOffset = App.Placement(V(0, 0, -11.917785), App.Rotation())
add_polygon(sketch6, [(-1.9, -14.3), (-11.5, -8.8), (-13.2, -5.7), (-13.2, 5.3), (-11.5, 8.4), (-1.9, 13.9), (1.6, 13.9), (11.2, 8.3), (13, 5.3), (13, -5.7), (11.2, -8.8), (1.7, -14.3)])
sketch6.addConstraint([
    Sketcher.Constraint("Vertical", 2),
    Sketcher.Constraint("Horizontal", 5),
    Sketcher.Constraint("Vertical", 8),
    Sketcher.Constraint("Horizontal", 11),
    Sketcher.Constraint("Perpendicular", 0, 3),
    Sketcher.Constraint("Perpendicular", 1, 4),
    Sketcher.Constraint("Perpendicular", 3, 6),
    Sketcher.Constraint("Perpendicular", 4, 7),
    Sketcher.Constraint("Perpendicular", 6, 9),
    Sketcher.Constraint("Perpendicular", 7, 10),
    Sketcher.Constraint("Horizontal", 2, 2, 7, 2),
    Sketcher.Constraint("Horizontal", 1, 2, 8, 2),
    Sketcher.Constraint("Horizontal", 0, 2, 9, 2),
    Sketcher.Constraint("Equal", 1, 9),
    Sketcher.Constraint("Angle", 0, Q("150 deg")),
    Sketcher.Constraint("DistanceX", 11, 2, 11, 1, 3.56),
    Sketcher.Constraint("DistanceY", 2, 1, 2, 2, 11.03),
    Sketcher.Constraint("DistanceX", 3, 2, 5, 2, 13.1),
    Sketcher.Constraint("Distance", 0, 11.03),
    Sketcher.Constraint("Distance", 1, 3.56),
    Sketcher.Constraint("Distance", 4, 11.020269),
    Sketcher.Constraint("Distance", 6, 11.062739),
    Sketcher.Constraint("DistanceX", 3, 2, -1, 1, 11.45975),
    Sketcher.Constraint("DistanceY", -1, 1, 3, 2, 8.366758),
])
pocket5 = doc.addObject("PartDesign::Pocket", "Pocket004")
body.addObject(pocket5)
pocket5.Profile = sketch6
pocket5.Length = 15
pocket5.Reversed = True

sketch7 = doc.addObject("Sketcher::SketchObject", "Sketch006")
body.addObject(sketch7)
sketch7.AttachmentSupport = (doc.XZ_Plane, [""])
sketch7.MapMode = "FlatFace"
sketch7.AttachmentOffset = App.Placement(V(0, 0, 8.082215), App.Rotation())
sketch7.addGeometry(Part.Circle(V(0, 0, 0), V(0, 0, 1), 10), False)
sketch7.addConstraint([
    Sketcher.Constraint("Coincident", 0, 3, -1, 1),
    Sketcher.Constraint("Diameter", 0, 21.0),
])
pocket6 = doc.addObject("PartDesign::Pocket", "Pocket005")
body.addObject(pocket6)
pocket6.Profile = sketch7
pocket6.Length = 5

doc.recompute()
